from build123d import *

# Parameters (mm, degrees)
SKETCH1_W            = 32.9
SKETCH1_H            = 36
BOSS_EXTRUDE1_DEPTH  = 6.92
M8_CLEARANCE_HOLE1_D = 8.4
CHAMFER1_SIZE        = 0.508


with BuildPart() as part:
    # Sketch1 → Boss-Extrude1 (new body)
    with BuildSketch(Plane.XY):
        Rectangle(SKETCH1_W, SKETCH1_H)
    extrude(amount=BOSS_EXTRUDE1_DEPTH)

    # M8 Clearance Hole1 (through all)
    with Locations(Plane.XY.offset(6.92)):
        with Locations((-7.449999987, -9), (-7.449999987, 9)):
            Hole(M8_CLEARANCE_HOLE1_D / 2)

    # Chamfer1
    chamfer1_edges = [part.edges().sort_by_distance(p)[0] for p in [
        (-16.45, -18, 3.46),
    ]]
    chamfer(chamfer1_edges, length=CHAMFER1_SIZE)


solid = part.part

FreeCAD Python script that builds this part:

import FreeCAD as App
import Part
import Sketcher

V = App.Vector


def edges_at(feature, points):
    """Names of the edges that pass closest to the given points."""
    edges = feature.Shape.Edges
    near = lambda p: min(range(len(edges)), key=lambda i: edges[i].distToShape(Part.Vertex(*p))[0])
    return sorted({f"Edge{near(p) + 1}" for p in points})


def add_polygon(sketch, points):
    """Adds a closed chain of lines whose ends are joined by coincident constraints."""
    first, n = sketch.GeometryCount, len(points)
    for a, b in zip(points, points[1:] + points[:1]):
        sketch.addGeometry(Part.LineSegment(App.Vector(*a, 0), App.Vector(*b, 0)), False)
    for i in range(n):
        sketch.addConstraint(Sketcher.Constraint("Coincident", first + i, 2, first + (i + 1) % n, 1))

doc = App.newDocument("Part")
body = doc.addObject("PartDesign::Body", "Body")

sketch1 = doc.addObject("Sketcher::SketchObject", "Sketch")
body.addObject(sketch1)
sketch1.AttachmentSupport = (doc.XY_Plane, [""])
sketch1.MapMode = "FlatFace"
add_polygon(sketch1, [(-16, 18), (-16, -18), (16, -18), (16, 18)])
sketch1.addConstraint([
    Sketcher.Constraint("Vertical", 0),
    Sketcher.Constraint("Horizontal", 1),
    Sketcher.Constraint("Vertical", 2),
    Sketcher.Constraint("Horizontal", 3),
    Sketcher.Constraint("Symmetric", 0, 2, 2, 2, -1, 1),
    Sketcher.Constraint("DistanceY", 0, 2, 0, 1, 36.0),
    Sketcher.Constraint("DistanceX", 1, 1, 1, 2, 32.9),
])
pad1 = doc.addObject("PartDesign::Pad", "Pad")
body.addObject(pad1)
pad1.Profile = sketch1
pad1.Length = 6.92

sketch2 = doc.addObject("Sketcher::SketchObject", "Sketch001")
body.addObject(sketch2)
sketch2.AttachmentSupport = (doc.XY_Plane, [""])
sketch2.MapMode = "FlatFace"
sketch2.AttachmentOffset = App.Placement(V(0, 0, 6.92), App.Rotation())
sketch2.addGeometry([
    Part.Circle(V(-7.4, -9, 0), V(0, 0, 1), 4.2),
    Part.Circle(V(-7.4, 9, 0), V(0, 0, 1), 4.2),
], False)
sketch2.addConstraint([
    Sketcher.Constraint("Equal", 0, 1),
    Sketcher.Constraint("Symmetric", 0, 3, 1, 3, -1),
    Sketcher.Constraint("Diameter", 0, 8.4),
    Sketcher.Constraint("DistanceY", 0, 3, -1, 1, 9.0),
    Sketcher.Constraint("DistanceX", 0, 3, -1, 1, 7.45),
])
doc.recompute()
hole = doc.addObject("PartDesign::Hole", "Hole")
body.addObject(hole)
hole.Profile = sketch2
hole.ThreadType = "None"
hole.Diameter = 8.4
hole.DepthType = "ThroughAll"
doc.recompute()

chamfer = doc.addObject("PartDesign::Chamfer", "Chamfer")
body.addObject(chamfer)
chamfer.Base = (hole, edges_at(hole, [(-16.45, -18, 3.46)]))
chamfer.Size = 0.508

doc.recompute()
